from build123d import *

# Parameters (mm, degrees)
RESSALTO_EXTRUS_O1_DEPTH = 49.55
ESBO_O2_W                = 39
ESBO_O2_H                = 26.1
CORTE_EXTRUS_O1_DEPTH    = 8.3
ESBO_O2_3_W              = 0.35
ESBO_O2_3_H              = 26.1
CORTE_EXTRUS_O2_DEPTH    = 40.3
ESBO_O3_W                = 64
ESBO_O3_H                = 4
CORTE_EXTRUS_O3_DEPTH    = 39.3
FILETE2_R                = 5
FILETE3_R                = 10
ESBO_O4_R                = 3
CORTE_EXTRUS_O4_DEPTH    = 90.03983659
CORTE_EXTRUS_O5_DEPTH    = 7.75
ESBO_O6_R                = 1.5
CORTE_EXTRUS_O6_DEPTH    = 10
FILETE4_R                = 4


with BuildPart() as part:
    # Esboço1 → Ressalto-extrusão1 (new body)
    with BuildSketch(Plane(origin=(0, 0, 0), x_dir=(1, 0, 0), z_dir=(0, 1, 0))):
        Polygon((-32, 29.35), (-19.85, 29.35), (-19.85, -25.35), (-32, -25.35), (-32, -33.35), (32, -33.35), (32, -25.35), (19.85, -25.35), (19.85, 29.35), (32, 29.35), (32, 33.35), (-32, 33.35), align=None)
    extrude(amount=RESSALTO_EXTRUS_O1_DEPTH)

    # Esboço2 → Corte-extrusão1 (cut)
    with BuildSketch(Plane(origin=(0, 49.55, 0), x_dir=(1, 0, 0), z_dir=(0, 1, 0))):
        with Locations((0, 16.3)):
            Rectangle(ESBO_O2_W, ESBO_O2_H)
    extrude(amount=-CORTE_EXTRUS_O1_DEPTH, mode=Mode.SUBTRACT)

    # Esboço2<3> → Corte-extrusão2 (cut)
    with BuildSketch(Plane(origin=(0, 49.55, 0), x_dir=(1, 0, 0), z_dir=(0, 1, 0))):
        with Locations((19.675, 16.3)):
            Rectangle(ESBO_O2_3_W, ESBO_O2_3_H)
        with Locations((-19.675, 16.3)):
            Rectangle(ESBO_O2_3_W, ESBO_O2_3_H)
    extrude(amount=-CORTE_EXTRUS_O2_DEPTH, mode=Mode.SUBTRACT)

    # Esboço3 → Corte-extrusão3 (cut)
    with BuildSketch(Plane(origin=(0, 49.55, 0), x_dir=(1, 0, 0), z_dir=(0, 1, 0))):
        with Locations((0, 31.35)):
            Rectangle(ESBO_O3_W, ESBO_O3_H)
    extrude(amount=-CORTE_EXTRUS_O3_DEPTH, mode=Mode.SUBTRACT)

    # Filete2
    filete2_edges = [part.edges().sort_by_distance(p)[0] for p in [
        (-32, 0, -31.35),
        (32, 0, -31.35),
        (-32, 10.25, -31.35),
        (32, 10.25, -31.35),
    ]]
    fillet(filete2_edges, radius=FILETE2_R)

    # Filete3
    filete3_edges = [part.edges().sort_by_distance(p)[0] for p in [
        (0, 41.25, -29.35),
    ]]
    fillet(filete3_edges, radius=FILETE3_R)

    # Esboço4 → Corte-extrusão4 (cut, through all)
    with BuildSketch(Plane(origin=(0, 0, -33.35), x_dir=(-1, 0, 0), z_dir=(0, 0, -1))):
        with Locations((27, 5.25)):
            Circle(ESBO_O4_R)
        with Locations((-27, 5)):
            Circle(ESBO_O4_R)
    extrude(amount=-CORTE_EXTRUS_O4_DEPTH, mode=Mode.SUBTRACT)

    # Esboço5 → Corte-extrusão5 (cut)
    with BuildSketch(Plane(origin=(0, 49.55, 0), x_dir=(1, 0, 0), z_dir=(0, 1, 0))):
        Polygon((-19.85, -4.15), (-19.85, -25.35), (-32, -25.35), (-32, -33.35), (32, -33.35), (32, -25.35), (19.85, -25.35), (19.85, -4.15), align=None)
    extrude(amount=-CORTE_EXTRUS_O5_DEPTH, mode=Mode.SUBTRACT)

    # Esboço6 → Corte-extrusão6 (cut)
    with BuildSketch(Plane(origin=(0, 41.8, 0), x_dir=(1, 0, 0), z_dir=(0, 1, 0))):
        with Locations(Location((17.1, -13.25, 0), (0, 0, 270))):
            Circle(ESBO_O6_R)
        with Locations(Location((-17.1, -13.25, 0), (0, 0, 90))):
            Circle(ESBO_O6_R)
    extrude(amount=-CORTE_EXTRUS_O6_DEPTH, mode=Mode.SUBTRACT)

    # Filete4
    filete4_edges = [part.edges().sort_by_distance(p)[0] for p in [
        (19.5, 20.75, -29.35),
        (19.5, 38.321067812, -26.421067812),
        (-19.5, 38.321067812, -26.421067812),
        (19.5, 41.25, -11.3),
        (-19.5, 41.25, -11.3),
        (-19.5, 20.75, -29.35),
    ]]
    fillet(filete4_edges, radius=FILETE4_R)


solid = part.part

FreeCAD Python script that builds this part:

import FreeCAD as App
import Part
import Sketcher
Q = App.Units.Quantity


def edges_at(feature, points):
    """Names of the edges that pass closest to the given points."""
    edges = feature.Shape.Edges
    near = lambda p: min(range(len(edges)), key=lambda i: edges[i].distToShape(Part.Vertex(*p))[0])
    return sorted({f"Edge{near(p) + 1}" for p in points})

doc = App.newDocument("Part")
body = doc.addObject("PartDesign::Body", "Body")

sketch1 = body.newObject("Sketcher::SketchObject", "Sketch")
sketch1.AttachmentSupport = (doc.getObject("XZ_Plane"), [""])
sketch1.MapMode = "FlatFace"
sketch1.addGeometry(Part.LineSegment(App.Vector(-32, -29.4, 0), App.Vector(-19.9, -29.4, 0)), False)
sketch1.addGeometry(Part.LineSegment(App.Vector(-19.9, -29.4, 0), App.Vector(-19.9, 25.4, 0)), False)
sketch1.addGeometry(Part.LineSegment(App.Vector(-19.9, 25.4, 0), App.Vector(-32, 25.4, 0)), False)
sketch1.addGeometry(Part.LineSegment(App.Vector(-32, 25.4, 0), App.Vector(-32, 33.4, 0)), False)
sketch1.addGeometry(Part.LineSegment(App.Vector(-32, 33.4, 0), App.Vector(32, 33.4, 0)), False)
sketch1.addGeometry(Part.LineSegment(App.Vector(32, 33.4, 0), App.Vector(32, 25.4, 0)), False)
sketch1.addGeometry(Part.LineSegment(App.Vector(32, 25.4, 0), App.Vector(19.9, 25.4, 0)), False)
sketch1.addGeometry(Part.LineSegment(App.Vector(19.9, 25.4, 0), App.Vector(19.9, -29.4, 0)), False)
sketch1.addGeometry(Part.LineSegment(App.Vector(19.9, -29.4, 0), App.Vector(32, -29.4, 0)), False)
sketch1.addGeometry(Part.LineSegment(App.Vector(32, -29.4, 0), App.Vector(32, -33.4, 0)), False)
sketch1.addGeometry(Part.LineSegment(App.Vector(32, -33.4, 0), App.Vector(-32, -33.4, 0)), False)
sketch1.addGeometry(Part.LineSegment(App.Vector(-32, -33.4, 0), App.Vector(-32, -29.4, 0)), False)
sketch1.addConstraint(Sketcher.Constraint("Coincident", 0, 2, 1, 1))
sketch1.addConstraint(Sketcher.Constraint("Coincident", 1, 2, 2, 1))
sketch1.addConstraint(Sketcher.Constraint("Coincident", 2, 2, 3, 1))
sketch1.addConstraint(Sketcher.Constraint("Coincident", 3, 2, 4, 1))
sketch1.addConstraint(Sketcher.Constraint("Coincident", 4, 2, 5, 1))
sketch1.addConstraint(Sketcher.Constraint("Coincident", 5, 2, 6, 1))
sketch1.addConstraint(Sketcher.Constraint("Coincident", 6, 2, 7, 1))
sketch1.addConstraint(Sketcher.Constraint("Coincident", 7, 2, 8, 1))
sketch1.addConstraint(Sketcher.Constraint("Coincident", 8, 2, 9, 1))
sketch1.addConstraint(Sketcher.Constraint("Coincident", 9, 2, 10, 1))
sketch1.addConstraint(Sketcher.Constraint("Coincident", 10, 2, 11, 1))
sketch1.addConstraint(Sketcher.Constraint("Coincident", 11, 2, 0, 1))
sketch1.addConstraint(Sketcher.Constraint("Horizontal", 0))
sketch1.addConstraint(Sketcher.Constraint("Vertical", 1))
sketch1.addConstraint(Sketcher.Constraint("Horizontal", 2))
sketch1.addConstraint(Sketcher.Constraint("Vertical", 3))
sketch1.addConstraint(Sketcher.Constraint("Horizontal", 4))
sketch1.addConstraint(Sketcher.Constraint("Vertical", 5))
sketch1.addConstraint(Sketcher.Constraint("Horizontal", 6))
sketch1.addConstraint(Sketcher.Constraint("Vertical", 7))
sketch1.addConstraint(Sketcher.Constraint("Horizontal", 8))
sketch1.addConstraint(Sketcher.Constraint("Vertical", 9))
sketch1.addConstraint(Sketcher.Constraint("Horizontal", 10))
sketch1.addConstraint(Sketcher.Constraint("Vertical", 11))
sketch1.addConstraint(Sketcher.Constraint("Symmetric", 3, 2, 9, 2, -1, 1))
sketch1.addConstraint(Sketcher.Constraint("Symmetric", 2, 2, 5, 2, -2))
sketch1.addConstraint(Sketcher.Constraint("Symmetric", 0, 2, 7, 2, -2))
sketch1.addConstraint(Sketcher.Constraint("Vertical", 3, 2, 10, 2))
sketch1.addConstraint(Sketcher.Constraint("DistanceX", 4, 1, 4, 2, Q("64 mm")))
sketch1.addConstraint(Sketcher.Constraint("DistanceY", 3, 1, 3, 2, Q("8 mm")))
sketch1.addConstraint(Sketcher.Constraint("DistanceY", 9, 2, 9, 1, Q("4 mm")))
sketch1.addConstraint(Sketcher.Constraint("DistanceY", 1, 1, 1, 2, Q("54.7 mm")))
sketch1.addConstraint(Sketcher.Constraint("DistanceX", 0, 1, 0, 2, Q("12.15 mm")))
pad1 = body.newObject("PartDesign::Pad", "Pad")
pad1.Profile = sketch1
pad1.Length = 49.55
pad1.Reversed = True

sketch2 = body.newObject("Sketcher::SketchObject", "Sketch001")
sketch2.AttachmentSupport = (doc.getObject("XZ_Plane"), [""])
sketch2.MapMode = "FlatFace"
sketch2.AttachmentOffset = App.Placement(App.Vector(0, 0, -49.55), App.Rotation())
sketch2.addGeometry(Part.LineSegment(App.Vector(-20, -29, 0), App.Vector(-20, -3, 0)), False)
sketch2.addGeometry(Part.LineSegment(App.Vector(-20, -3, 0), App.Vector(20, -3, 0)), False)
sketch2.addGeometry(Part.LineSegment(App.Vector(20, -3, 0), App.Vector(20, -29, 0)), False)
sketch2.addGeometry(Part.LineSegment(App.Vector(20, -29, 0), App.Vector(-20, -29, 0)), False)
sketch2.addConstraint(Sketcher.Constraint("Coincident", 0, 2, 1, 1))
sketch2.addConstraint(Sketcher.Constraint("Coincident", 1, 2, 2, 1))
sketch2.addConstraint(Sketcher.Constraint("Coincident", 2, 2, 3, 1))
sketch2.addConstraint(Sketcher.Constraint("Coincident", 3, 2, 0, 1))
sketch2.addConstraint(Sketcher.Constraint("Vertical", 0))
sketch2.addConstraint(Sketcher.Constraint("Horizontal", 1))
sketch2.addConstraint(Sketcher.Constraint("Vertical", 2))
sketch2.addConstraint(Sketcher.Constraint("Horizontal", 3))
sketch2.addConstraint(Sketcher.Constraint("DistanceX", 1, 1, 1, 2, Q("39 mm")))
sketch2.addConstraint(Sketcher.Constraint("DistanceY", 0, 1, 0, 2, Q("26.1 mm")))
sketch2.addConstraint(Sketcher.Constraint("DistanceX", 0, 2, -1, 1, Q("19.5 mm")))
sketch2.addConstraint(Sketcher.Constraint("DistanceY", 0, 2, -1, 1, Q("3.25 mm")))
pocket1 = body.newObject("PartDesign::Pocket", "Pocket")
pocket1.Profile = sketch2
pocket1.Length = 8.3
pocket1.Reversed = True

sketch3 = body.newObject("Sketcher::SketchObject", "Sketch002")
sketch3.AttachmentSupport = (doc.getObject("XZ_Plane"), [""])
sketch3.MapMode = "FlatFace"
sketch3.AttachmentOffset = App.Placement(App.Vector(0, 0, -49.55), App.Rotation())
sketch3.addGeometry(Part.LineSegment(App.Vector(19.5, -29.35, 0), App.Vector(19.5, -3.25, 0)), False)
sketch3.addGeometry(Part.LineSegment(App.Vector(19.5, -3.25, 0), App.Vector(19.85, -3.25, 0)), False)
sketch3.addGeometry(Part.LineSegment(App.Vector(19.85, -3.25, 0), App.Vector(19.85, -29.35, 0)), False)
sketch3.addGeometry(Part.LineSegment(App.Vector(19.85, -29.35, 0), App.Vector(19.5, -29.35, 0)), False)
sketch3.addGeometry(Part.LineSegment(App.Vector(-19.85, -29.35, 0), App.Vector(-19.85, -3.25, 0)), False)
sketch3.addGeometry(Part.LineSegment(App.Vector(-19.85, -3.25, 0), App.Vector(-19.5, -3.25, 0)), False)
sketch3.addGeometry(Part.LineSegment(App.Vector(-19.5, -3.25, 0), App.Vector(-19.5, -29.35, 0)), False)
sketch3.addGeometry(Part.LineSegment(App.Vector(-19.5, -29.35, 0), App.Vector(-19.85, -29.35, 0)), False)
sketch3.addConstraint(Sketcher.Constraint("Coincident", 0, 2, 1, 1))
sketch3.addConstraint(Sketcher.Constraint("Coincident", 1, 2, 2, 1))
sketch3.addConstraint(Sketcher.Constraint("Coincident", 2, 2, 3, 1))
sketch3.addConstraint(Sketcher.Constraint("Coincident", 3, 2, 0, 1))
sketch3.addConstraint(Sketcher.Constraint("Coincident", 4, 2, 5, 1))
sketch3.addConstraint(Sketcher.Constraint("Coincident", 5, 2, 6, 1))
sketch3.addConstraint(Sketcher.Constraint("Coincident", 6, 2, 7, 1))
sketch3.addConstraint(Sketcher.Constraint("Coincident", 7, 2, 4, 1))
sketch3.addConstraint(Sketcher.Constraint("Vertical", 0))
sketch3.addConstraint(Sketcher.Constraint("Horizontal", 1))
sketch3.addConstraint(Sketcher.Constraint("Vertical", 2))
sketch3.addConstraint(Sketcher.Constraint("Horizontal", 3))
sketch3.addConstraint(Sketcher.Constraint("Vertical", 4))
sketch3.addConstraint(Sketcher.Constraint("Horizontal", 5))
sketch3.addConstraint(Sketcher.Constraint("Vertical", 6))
sketch3.addConstraint(Sketcher.Constraint("Horizontal", 7))
sketch3.addConstraint(Sketcher.Constraint("Symmetric", 1, 2, 4, 2, -2))
sketch3.addConstraint(Sketcher.Constraint("Symmetric", 3, 2, 6, 2, -2))
sketch3.addConstraint(Sketcher.Constraint("DistanceY", 0, 1, 0, 2, Q("26.1 mm")))
sketch3.addConstraint(Sketcher.Constraint("DistanceX", 5, 2, 0, 2, Q("39 mm")))
sketch3.addConstraint(Sketcher.Constraint("DistanceX", 1, 1, 1, 2, Q("0.35 mm")))
sketch3.addConstraint(Sketcher.Constraint("DistanceY", 0, 2, -1, 1, Q("3.25 mm")))
pocket2 = body.newObject("PartDesign::Pocket", "Pocket001")
pocket2.Profile = sketch3
pocket2.Length = 40.3
pocket2.Reversed = True

sketch4 = body.newObject("Sketcher::SketchObject", "Sketch003")
sketch4.AttachmentSupport = (doc.getObject("XZ_Plane"), [""])
sketch4.MapMode = "FlatFace"
sketch4.AttachmentOffset = App.Placement(App.Vector(0, 0, -49.55), App.Rotation())
sketch4.addGeometry(Part.LineSegment(App.Vector(-32, -33.4, 0), App.Vector(-32, -29.4, 0)), False)
sketch4.addGeometry(Part.LineSegment(App.Vector(-32, -29.4, 0), App.Vector(32, -29.4, 0)), False)
sketch4.addGeometry(Part.LineSegment(App.Vector(32, -29.4, 0), App.Vector(32, -33.4, 0)), False)
sketch4.addGeometry(Part.LineSegment(App.Vector(32, -33.4, 0), App.Vector(-32, -33.4, 0)), False)
sketch4.addConstraint(Sketcher.Constraint("Coincident", 0, 2, 1, 1))
sketch4.addConstraint(Sketcher.Constraint("Coincident", 1, 2, 2, 1))
sketch4.addConstraint(Sketcher.Constraint("Coincident", 2, 2, 3, 1))
sketch4.addConstraint(Sketcher.Constraint("Coincident", 3, 2, 0, 1))
sketch4.addConstraint(Sketcher.Constraint("Vertical", 0))
sketch4.addConstraint(Sketcher.Constraint("Horizontal", 1))
sketch4.addConstraint(Sketcher.Constraint("Vertical", 2))
sketch4.addConstraint(Sketcher.Constraint("Horizontal", 3))
sketch4.addConstraint(Sketcher.Constraint("DistanceX", 1, 1, 1, 2, Q("64 mm")))
sketch4.addConstraint(Sketcher.Constraint("DistanceY", 0, 1, 0, 2, Q("4 mm")))
sketch4.addConstraint(Sketcher.Constraint("DistanceX", 0, 2, -1, 1, Q("32 mm")))
sketch4.addConstraint(Sketcher.Constraint("DistanceY", 0, 2, -1, 1, Q("29.35 mm")))
pocket3 = body.newObject("PartDesign::Pocket", "Pocket002")
pocket3.Profile = sketch4
pocket3.Length = 39.3
pocket3.Reversed = True
doc.recompute()

fillet = body.newObject("PartDesign::Fillet", "Fillet")
fillet.Base = (pocket3, edges_at(pocket3, [
    (-32, 0, -31.35),
    (32, 0, -31.35),
    (-32, 10.25, -31.35),
    (32, 10.25, -31.35),
]))
fillet.Radius = 5
doc.recompute()

fillet2 = body.newObject("PartDesign::Fillet", "Fillet001")
fillet2.Base = (fillet, edges_at(fillet, [(0, 41.25, -29.35)]))
fillet2.Radius = 10

sketch5 = body.newObject("Sketcher::SketchObject", "Sketch004")
sketch5.AttachmentSupport = (doc.getObject("XY_Plane"), [""])
sketch5.MapMode = "FlatFace"
sketch5.AttachmentOffset = App.Placement(App.Vector(0, 0, -33.35), App.Rotation())
sketch5.addGeometry(Part.Circle(App.Vector(-27, 5.2, 0), App.Vector(0, 0, 1), 3), False)
sketch5.addGeometry(Part.Circle(App.Vector(27, 5, 0), App.Vector(0, 0, 1), 3), False)
sketch5.addConstraint(Sketcher.Constraint("Equal", 0, 1))
sketch5.addConstraint(Sketcher.Constraint("Diameter", 0, Q("6 mm")))
sketch5.addConstraint(Sketcher.Constraint("DistanceX", 0, 3, -1, 1, Q("27 mm")))
sketch5.addConstraint(Sketcher.Constraint("DistanceX", -1, 1, 1, 3, Q("27 mm")))
sketch5.addConstraint(Sketcher.Constraint("DistanceY", -1, 1, 1, 3, Q("5 mm")))
sketch5.addConstraint(Sketcher.Constraint("DistanceY", -1, 1, 0, 3, Q("5.25 mm")))
pocket4 = body.newObject("PartDesign::Pocket", "Pocket003")
pocket4.Profile = sketch5
pocket4.Type = "ThroughAll"
pocket4.Reversed = True

sketch6 = body.newObject("Sketcher::SketchObject", "Sketch005")
sketch6.AttachmentSupport = (doc.getObject("XZ_Plane"), [""])
sketch6.MapMode = "FlatFace"
sketch6.AttachmentOffset = App.Placement(App.Vector(0, 0, -49.55), App.Rotation())
sketch6.addGeometry(Part.LineSegment(App.Vector(-20, 4, 0), App.Vector(-20, 25, 0)), False)
sketch6.addGeometry(Part.LineSegment(App.Vector(-20, 25, 0), App.Vector(-32, 25, 0)), False)
sketch6.addGeometry(Part.LineSegment(App.Vector(-32, 25, 0), App.Vector(-32, 33, 0)), False)
sketch6.addGeometry(Part.LineSegment(App.Vector(-32, 33, 0), App.Vector(32, 33, 0)), False)
sketch6.addGeometry(Part.LineSegment(App.Vector(32, 33, 0), App.Vector(32, 25, 0)), False)
sketch6.addGeometry(Part.LineSegment(App.Vector(32, 25, 0), App.Vector(20, 25, 0)), False)
sketch6.addGeometry(Part.LineSegment(App.Vector(20, 25, 0), App.Vector(20, 4, 0)), False)
sketch6.addGeometry(Part.LineSegment(App.Vector(20, 4, 0), App.Vector(-20, 4, 0)), False)
sketch6.addConstraint(Sketcher.Constraint("Coincident", 0, 2, 1, 1))
sketch6.addConstraint(Sketcher.Constraint("Coincident", 1, 2, 2, 1))
sketch6.addConstraint(Sketcher.Constraint("Coincident", 2, 2, 3, 1))
sketch6.addConstraint(Sketcher.Constraint("Coincident", 3, 2, 4, 1))
sketch6.addConstraint(Sketcher.Constraint("Coincident", 4, 2, 5, 1))
sketch6.addConstraint(Sketcher.Constraint("Coincident", 5, 2, 6, 1))
sketch6.addConstraint(Sketcher.Constraint("Coincident", 6, 2, 7, 1))
sketch6.addConstraint(Sketcher.Constraint("Coincident", 7, 2, 0, 1))
sketch6.addConstraint(Sketcher.Constraint("Vertical", 0))
sketch6.addConstraint(Sketcher.Constraint("Horizontal", 1))
sketch6.addConstraint(Sketcher.Constraint("Vertical", 2))
sketch6.addConstraint(Sketcher.Constraint("Horizontal", 3))
sketch6.addConstraint(Sketcher.Constraint("Vertical", 4))
sketch6.addConstraint(Sketcher.Constraint("Horizontal", 5))
sketch6.addConstraint(Sketcher.Constraint("Vertical", 6))
sketch6.addConstraint(Sketcher.Constraint("Horizontal", 7))
sketch6.addConstraint(Sketcher.Constraint("Symmetric", 1, 2, 4, 2, -2))
sketch6.addConstraint(Sketcher.Constraint("Equal", 1, 5))
sketch6.addConstraint(Sketcher.Constraint("DistanceX", 3, 1, 3, 2, Q("64 mm")))
sketch6.addConstraint(Sketcher.Constraint("DistanceY", 2, 1, 2, 2, Q("8 mm")))
sketch6.addConstraint(Sketcher.Constraint("DistanceX", 7, 2, 7, 1, Q("39.7 mm")))
sketch6.addConstraint(Sketcher.Constraint("DistanceY", 0, 1, 0, 2, Q("21.2 mm")))
sketch6.addConstraint(Sketcher.Constraint("DistanceY", -1, 1, 0, 2, Q("25.35 mm")))
pocket5 = body.newObject("PartDesign::Pocket", "Pocket004")
pocket5.Profile = sketch6
pocket5.Length = 7.75
pocket5.Reversed = True

sketch7 = body.newObject("Sketcher::SketchObject", "Sketch006")
sketch7.AttachmentSupport = (doc.getObject("XZ_Plane"), [""])
sketch7.MapMode = "FlatFace"
sketch7.AttachmentOffset = App.Placement(App.Vector(0, 0, -41.8), App.Rotation())
sketch7.addGeometry(Part.Circle(App.Vector(17.1, 13.2, 0), App.Vector(0, 0, 1), 1.5), False)
sketch7.addGeometry(Part.Circle(App.Vector(-17.1, 13.2, 0), App.Vector(0, 0, 1), 1.5), False)
sketch7.addConstraint(Sketcher.Constraint("Equal", 0, 1))
sketch7.addConstraint(Sketcher.Constraint("Symmetric", 0, 3, 1, 3, -2))
sketch7.addConstraint(Sketcher.Constraint("Diameter", 0, Q("3 mm")))
sketch7.addConstraint(Sketcher.Constraint("DistanceX", -1, 1, 0, 3, Q("17.1 mm")))
sketch7.addConstraint(Sketcher.Constraint("DistanceY", -1, 1, 0, 3, Q("13.25 mm")))
pocket6 = body.newObject("PartDesign::Pocket", "Pocket005")
pocket6.Profile = sketch7
pocket6.Length = 10
pocket6.Reversed = True
doc.recompute()

fillet3 = body.newObject("PartDesign::Fillet", "Fillet002")
fillet3.Base = (pocket6, edges_at(pocket6, [
    (19.5, 20.75, -29.35),
    (19.5, 38.321, -26.421),
    (-19.5, 38.321, -26.421),
    (19.5, 41.25, -11.3),
    (-19.5, 41.25, -11.3),
    (-19.5, 20.75, -29.35),
]))
fillet3.Radius = 4

doc.recompute()
